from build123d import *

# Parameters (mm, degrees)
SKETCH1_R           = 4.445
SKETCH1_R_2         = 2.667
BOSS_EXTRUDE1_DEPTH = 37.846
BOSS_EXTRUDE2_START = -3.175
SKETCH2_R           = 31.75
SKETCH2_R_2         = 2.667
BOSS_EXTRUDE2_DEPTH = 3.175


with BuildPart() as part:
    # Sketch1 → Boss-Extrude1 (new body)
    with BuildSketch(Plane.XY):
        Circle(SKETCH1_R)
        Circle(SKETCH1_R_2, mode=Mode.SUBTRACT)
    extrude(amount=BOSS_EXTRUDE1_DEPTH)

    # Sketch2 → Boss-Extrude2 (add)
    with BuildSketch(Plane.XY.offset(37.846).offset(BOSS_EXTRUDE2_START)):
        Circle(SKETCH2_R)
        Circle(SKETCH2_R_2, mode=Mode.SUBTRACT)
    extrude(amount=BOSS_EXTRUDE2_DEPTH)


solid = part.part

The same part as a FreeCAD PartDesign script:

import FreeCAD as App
import Part
import Sketcher
Q = App.Units.Quantity

doc = App.newDocument("Part")
body = doc.addObject("PartDesign::Body", "Body")

# Sketch on XY plane
sketch1 = doc.addObject("Sketcher::SketchObject", "Sketch")
body.addObject(sketch1)
sketch1.AttachmentSupport = (doc.XY_Plane, [""])
sketch1.MapMode = "FlatFace"
sketch1.addGeometry(Part.Circle(App.Vector(0, 0, 0), App.Vector(0, 0, 1), 4.4), False)
sketch1.addGeometry(Part.Circle(App.Vector(0, 0, 0), App.Vector(0, 0, 1), 2.7), False)
sketch1.addConstraint(Sketcher.Constraint("Coincident", 0, 3, -1, 1))
sketch1.addConstraint(Sketcher.Constraint("Coincident", 1, 3, -1, 1))
sketch1.addConstraint(Sketcher.Constraint("Diameter", 0, Q("0.35 in")))
sketch1.addConstraint(Sketcher.Constraint("Diameter", 1, Q("0.21 in")))
pad1 = doc.addObject("PartDesign::Pad", "Pad")
body.addObject(pad1)
pad1.Profile = sketch1
pad1.Length = Q("1.49 in")

# Sketch on XY plane
sketch2 = doc.addObject("Sketcher::SketchObject", "Sketch001")
body.addObject(sketch2)
sketch2.AttachmentSupport = (doc.XY_Plane, [""])
sketch2.MapMode = "FlatFace"
sketch2.AttachmentOffset = App.Placement(App.Vector(0, 0, 1.365 * 25.4), App.Rotation())
sketch2.addGeometry(Part.Circle(App.Vector(0, 0, 0), App.Vector(0, 0, 1), 31.8), False)
sketch2.addGeometry(Part.Circle(App.Vector(0, 0, 0), App.Vector(0, 0, 1), 2.7), False)
sketch2.addConstraint(Sketcher.Constraint("Coincident", 0, 3, -1, 1))
sketch2.addConstraint(Sketcher.Constraint("Coincident", 1, 3, -1, 1))
sketch2.addConstraint(Sketcher.Constraint("Diameter", 0, Q("2.5 in")))
sketch2.addConstraint(Sketcher.Constraint("Diameter", 1, Q("0.21 in")))
pad2 = doc.addObject("PartDesign::Pad", "Pad001")
body.addObject(pad2)
pad2.Profile = sketch2
pad2.Length = Q("0.125 in")

doc.recompute()
